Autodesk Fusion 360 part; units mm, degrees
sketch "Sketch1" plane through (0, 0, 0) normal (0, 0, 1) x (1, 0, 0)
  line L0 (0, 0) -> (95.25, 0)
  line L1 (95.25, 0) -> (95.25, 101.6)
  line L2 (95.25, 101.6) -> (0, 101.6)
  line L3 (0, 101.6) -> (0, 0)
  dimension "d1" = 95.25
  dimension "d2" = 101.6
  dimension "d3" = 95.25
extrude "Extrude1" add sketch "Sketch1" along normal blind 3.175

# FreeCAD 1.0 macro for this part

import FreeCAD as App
import Part
import Sketcher
Q = App.Units.Quantity

doc = App.newDocument("Part")
body = doc.addObject("PartDesign::Body", "Body")

# Sketch on XY plane
sketch1 = body.newObject("Sketcher::SketchObject", "Sketch")
sketch1.AttachmentSupport = (doc.getObject("XY_Plane"), [""])
sketch1.MapMode = "FlatFace"
sketch1.addGeometry([
    Part.LineSegment(App.Vector(0, 101.6, 0), App.Vector(0, 0, 0)),
    Part.LineSegment(App.Vector(0, 0, 0), App.Vector(95.25, 0, 0)),
    Part.LineSegment(App.Vector(95.25, 0, 0), App.Vector(95.25, 101.6, 0)),
    Part.LineSegment(App.Vector(95.25, 101.6, 0), App.Vector(0, 101.6, 0)),
], False)
sketch1.addConstraint([
    Sketcher.Constraint("Coincident", 0, 2, 1, 1),
    Sketcher.Constraint("Coincident", 1, 2, 2, 1),
    Sketcher.Constraint("Coincident", 2, 2, 3, 1),
    Sketcher.Constraint("Coincident", 3, 2, 0, 1),
    Sketcher.Constraint("Vertical", 0),
    Sketcher.Constraint("Horizontal", 1),
    Sketcher.Constraint("Vertical", 2),
    Sketcher.Constraint("Horizontal", 3),
    Sketcher.Constraint("Coincident", 0, 2, -1, 1),
    Sketcher.Constraint("DistanceY", 0, 2, 0, 1, Q("4 in")),
    Sketcher.Constraint("DistanceX", 1, 1, 1, 2, Q("3.75 in")),
])
pad1 = body.newObject("PartDesign::Pad", "Pad")
pad1.Profile = sketch1
pad1.Length = Q("0.125 in")

doc.recompute()
